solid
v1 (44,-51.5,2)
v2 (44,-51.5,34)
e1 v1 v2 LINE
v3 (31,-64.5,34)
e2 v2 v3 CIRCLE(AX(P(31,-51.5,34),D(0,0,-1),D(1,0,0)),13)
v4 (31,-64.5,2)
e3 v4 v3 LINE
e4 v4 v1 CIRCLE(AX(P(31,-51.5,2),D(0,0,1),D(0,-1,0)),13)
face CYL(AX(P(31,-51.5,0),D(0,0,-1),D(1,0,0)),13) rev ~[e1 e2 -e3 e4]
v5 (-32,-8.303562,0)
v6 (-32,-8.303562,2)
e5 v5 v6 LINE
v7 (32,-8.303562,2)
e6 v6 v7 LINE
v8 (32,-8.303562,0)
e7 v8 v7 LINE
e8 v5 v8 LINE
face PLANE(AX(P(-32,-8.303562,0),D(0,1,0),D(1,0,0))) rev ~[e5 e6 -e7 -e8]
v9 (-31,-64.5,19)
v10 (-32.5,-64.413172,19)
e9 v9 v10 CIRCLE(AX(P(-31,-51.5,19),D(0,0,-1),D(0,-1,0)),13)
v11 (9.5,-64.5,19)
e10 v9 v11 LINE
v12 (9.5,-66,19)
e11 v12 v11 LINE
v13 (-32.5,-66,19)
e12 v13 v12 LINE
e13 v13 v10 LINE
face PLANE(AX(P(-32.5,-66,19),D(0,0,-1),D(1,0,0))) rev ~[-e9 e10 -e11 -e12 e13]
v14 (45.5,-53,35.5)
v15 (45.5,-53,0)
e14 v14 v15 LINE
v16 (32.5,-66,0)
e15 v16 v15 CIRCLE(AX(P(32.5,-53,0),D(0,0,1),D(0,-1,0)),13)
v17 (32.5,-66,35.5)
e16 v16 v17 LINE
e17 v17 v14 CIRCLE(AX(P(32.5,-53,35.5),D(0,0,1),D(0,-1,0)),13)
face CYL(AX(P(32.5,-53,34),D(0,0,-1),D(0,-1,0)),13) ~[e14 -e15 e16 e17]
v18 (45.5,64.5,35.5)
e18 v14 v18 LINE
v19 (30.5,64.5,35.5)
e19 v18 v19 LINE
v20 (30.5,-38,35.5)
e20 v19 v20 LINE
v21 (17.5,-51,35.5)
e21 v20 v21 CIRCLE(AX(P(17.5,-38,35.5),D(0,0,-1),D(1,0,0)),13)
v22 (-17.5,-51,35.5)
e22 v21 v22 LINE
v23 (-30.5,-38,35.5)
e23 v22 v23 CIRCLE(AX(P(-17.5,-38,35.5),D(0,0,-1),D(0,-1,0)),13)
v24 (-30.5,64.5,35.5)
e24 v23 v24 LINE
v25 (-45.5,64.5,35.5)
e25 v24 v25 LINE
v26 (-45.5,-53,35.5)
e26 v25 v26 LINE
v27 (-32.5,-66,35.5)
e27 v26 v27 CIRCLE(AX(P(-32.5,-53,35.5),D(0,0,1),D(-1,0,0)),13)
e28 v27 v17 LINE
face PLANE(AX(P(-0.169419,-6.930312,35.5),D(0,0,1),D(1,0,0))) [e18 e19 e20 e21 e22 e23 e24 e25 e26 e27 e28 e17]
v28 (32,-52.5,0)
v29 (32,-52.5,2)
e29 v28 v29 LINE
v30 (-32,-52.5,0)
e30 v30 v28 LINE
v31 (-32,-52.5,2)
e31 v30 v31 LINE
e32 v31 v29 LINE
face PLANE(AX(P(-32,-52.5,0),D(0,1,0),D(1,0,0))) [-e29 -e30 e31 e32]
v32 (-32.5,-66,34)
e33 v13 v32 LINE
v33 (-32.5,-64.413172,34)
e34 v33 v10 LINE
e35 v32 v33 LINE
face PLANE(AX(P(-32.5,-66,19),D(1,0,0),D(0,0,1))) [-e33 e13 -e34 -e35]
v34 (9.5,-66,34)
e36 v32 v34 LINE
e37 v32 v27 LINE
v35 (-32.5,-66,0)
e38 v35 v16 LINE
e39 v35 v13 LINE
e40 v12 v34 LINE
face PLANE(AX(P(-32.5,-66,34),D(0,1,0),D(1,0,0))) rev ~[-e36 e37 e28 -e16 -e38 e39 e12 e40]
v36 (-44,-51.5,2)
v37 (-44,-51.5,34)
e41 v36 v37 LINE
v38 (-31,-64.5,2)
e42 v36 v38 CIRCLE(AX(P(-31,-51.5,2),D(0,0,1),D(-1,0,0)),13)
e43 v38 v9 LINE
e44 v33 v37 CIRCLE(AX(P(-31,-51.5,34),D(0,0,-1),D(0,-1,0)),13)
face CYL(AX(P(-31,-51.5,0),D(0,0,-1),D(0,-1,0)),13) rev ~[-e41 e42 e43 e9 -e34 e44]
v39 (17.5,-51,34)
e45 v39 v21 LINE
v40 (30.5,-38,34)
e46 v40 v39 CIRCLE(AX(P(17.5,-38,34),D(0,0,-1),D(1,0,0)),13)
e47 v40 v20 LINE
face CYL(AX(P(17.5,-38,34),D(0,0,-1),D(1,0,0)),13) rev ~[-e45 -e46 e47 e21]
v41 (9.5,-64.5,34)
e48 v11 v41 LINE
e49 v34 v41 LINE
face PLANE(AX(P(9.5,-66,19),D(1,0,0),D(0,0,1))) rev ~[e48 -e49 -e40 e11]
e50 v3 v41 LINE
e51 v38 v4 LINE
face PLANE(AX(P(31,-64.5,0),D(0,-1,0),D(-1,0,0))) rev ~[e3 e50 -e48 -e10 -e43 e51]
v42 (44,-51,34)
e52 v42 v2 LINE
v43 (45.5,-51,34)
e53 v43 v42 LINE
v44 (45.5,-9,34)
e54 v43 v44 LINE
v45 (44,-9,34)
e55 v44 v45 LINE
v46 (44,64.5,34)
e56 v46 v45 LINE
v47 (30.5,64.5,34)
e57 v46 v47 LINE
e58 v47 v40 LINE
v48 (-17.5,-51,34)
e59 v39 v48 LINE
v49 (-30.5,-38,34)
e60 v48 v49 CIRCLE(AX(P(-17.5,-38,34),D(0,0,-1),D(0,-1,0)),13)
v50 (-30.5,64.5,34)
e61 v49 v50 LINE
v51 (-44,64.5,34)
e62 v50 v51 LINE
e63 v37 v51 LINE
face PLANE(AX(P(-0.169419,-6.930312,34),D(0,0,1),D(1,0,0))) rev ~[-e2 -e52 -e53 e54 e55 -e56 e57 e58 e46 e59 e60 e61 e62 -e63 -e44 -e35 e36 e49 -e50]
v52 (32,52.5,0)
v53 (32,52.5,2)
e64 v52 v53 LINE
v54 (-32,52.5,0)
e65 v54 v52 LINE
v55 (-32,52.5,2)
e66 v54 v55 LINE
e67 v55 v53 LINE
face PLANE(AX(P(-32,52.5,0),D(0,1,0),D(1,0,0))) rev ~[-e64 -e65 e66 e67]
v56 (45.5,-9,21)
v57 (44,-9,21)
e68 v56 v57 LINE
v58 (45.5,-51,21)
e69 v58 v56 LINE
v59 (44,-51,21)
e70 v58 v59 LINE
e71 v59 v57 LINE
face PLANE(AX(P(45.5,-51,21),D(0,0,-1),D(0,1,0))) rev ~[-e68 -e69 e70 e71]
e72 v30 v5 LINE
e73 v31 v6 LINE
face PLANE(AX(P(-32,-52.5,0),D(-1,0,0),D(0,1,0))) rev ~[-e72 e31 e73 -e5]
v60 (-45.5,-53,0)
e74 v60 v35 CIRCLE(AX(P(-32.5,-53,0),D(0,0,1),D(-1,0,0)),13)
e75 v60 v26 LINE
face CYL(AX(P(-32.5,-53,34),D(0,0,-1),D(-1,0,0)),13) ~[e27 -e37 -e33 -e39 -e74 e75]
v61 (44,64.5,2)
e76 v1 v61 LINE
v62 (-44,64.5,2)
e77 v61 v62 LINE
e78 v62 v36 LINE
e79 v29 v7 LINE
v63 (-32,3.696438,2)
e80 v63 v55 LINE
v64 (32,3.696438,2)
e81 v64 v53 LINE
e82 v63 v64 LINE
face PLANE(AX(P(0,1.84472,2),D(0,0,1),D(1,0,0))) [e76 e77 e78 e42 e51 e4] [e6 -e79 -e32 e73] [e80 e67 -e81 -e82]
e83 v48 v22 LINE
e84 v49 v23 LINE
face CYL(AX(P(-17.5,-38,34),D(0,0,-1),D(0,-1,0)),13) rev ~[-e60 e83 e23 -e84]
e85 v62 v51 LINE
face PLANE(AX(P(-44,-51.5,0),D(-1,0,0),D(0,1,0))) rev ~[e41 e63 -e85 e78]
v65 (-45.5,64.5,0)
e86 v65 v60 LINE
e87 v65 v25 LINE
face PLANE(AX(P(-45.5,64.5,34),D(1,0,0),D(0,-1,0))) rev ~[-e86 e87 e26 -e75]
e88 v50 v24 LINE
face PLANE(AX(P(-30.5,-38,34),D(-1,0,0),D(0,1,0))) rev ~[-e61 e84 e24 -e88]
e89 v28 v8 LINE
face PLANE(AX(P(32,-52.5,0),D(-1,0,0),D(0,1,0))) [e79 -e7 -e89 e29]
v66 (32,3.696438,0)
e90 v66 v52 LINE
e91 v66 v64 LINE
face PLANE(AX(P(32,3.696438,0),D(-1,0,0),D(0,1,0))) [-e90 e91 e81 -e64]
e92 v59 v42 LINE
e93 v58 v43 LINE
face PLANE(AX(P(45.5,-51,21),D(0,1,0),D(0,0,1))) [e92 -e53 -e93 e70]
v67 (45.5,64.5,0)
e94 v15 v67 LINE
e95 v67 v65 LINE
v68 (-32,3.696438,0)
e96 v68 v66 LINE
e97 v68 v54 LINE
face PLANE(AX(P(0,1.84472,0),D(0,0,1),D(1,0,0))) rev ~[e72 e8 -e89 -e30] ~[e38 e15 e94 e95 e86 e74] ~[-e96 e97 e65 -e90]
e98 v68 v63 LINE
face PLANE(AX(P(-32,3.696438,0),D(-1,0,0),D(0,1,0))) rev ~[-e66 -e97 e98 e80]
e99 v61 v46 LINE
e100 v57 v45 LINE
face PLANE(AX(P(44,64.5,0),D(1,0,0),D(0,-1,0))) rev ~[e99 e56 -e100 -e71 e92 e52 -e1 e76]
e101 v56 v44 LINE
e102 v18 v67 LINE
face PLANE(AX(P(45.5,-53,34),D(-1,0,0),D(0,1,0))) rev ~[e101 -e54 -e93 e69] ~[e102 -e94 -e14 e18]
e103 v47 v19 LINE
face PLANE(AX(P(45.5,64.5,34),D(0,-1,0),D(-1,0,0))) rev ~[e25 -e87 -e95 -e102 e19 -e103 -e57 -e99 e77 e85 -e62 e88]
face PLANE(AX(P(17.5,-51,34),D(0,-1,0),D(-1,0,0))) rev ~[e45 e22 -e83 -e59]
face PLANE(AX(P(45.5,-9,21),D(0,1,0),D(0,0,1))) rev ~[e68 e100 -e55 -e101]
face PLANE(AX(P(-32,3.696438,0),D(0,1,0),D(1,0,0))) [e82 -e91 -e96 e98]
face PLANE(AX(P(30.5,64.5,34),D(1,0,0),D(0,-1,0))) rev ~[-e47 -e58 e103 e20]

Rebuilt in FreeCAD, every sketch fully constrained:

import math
import FreeCAD as App
import Part
import Sketcher


def add_polygon(sketch, points):
    """Adds a closed chain of lines whose ends are joined by coincident constraints."""
    first, n = sketch.GeometryCount, len(points)
    for a, b in zip(points, points[1:] + points[:1]):
        sketch.addGeometry(Part.LineSegment(App.Vector(*a, 0), App.Vector(*b, 0)), False)
    for i in range(n):
        sketch.addConstraint(Sketcher.Constraint("Coincident", first + i, 2, first + (i + 1) % n, 1))

doc = App.newDocument("Part")
body = doc.addObject("PartDesign::Body", "Body")

# Sketch on XY plane
sketch1 = body.newObject("Sketcher::SketchObject", "Sketch")
sketch1.AttachmentSupport = (doc.getObject("XY_Plane"), [""])
sketch1.MapMode = "FlatFace"
sketch1.addGeometry(Part.LineSegment(App.Vector(-31, -64.5, 0), App.Vector(31, -64.5, 0)), False)  # 0
sketch1.addGeometry(Part.ArcOfCircle(Part.Circle(App.Vector(31, -51.5, 0), App.Vector(0, 0, 1), 13), math.radians(-90), math.radians(0)), False)  # 1
sketch1.addGeometry(Part.LineSegment(App.Vector(44, -51.5, 0), App.Vector(44, 64.5, 0)), False)  # 2
sketch1.addGeometry(Part.LineSegment(App.Vector(44, 64.5, 0), App.Vector(-44, 64.5, 0)), False)  # 3
sketch1.addGeometry(Part.LineSegment(App.Vector(-44, 64.5, 0), App.Vector(-44, -51.5, 0)), False)  # 4
sketch1.addGeometry(Part.ArcOfCircle(Part.Circle(App.Vector(-31, -51.5, 0), App.Vector(0, 0, 1), 13), math.radians(180), math.radians(270)), False)  # 5
add_polygon(sketch1, [(32, -52.5), (-32, -52.5), (-32, -8.303562), (32, -8.303562)])  # lines 6-9
add_polygon(sketch1, [(32, 3.696438), (-32, 3.696438), (-32, 52.5), (32, 52.5)])  # lines 10-13
sketch1.addConstraint(Sketcher.Constraint("Tangent", 0, 2, 1, 1))
sketch1.addConstraint(Sketcher.Constraint("Tangent", 1, 2, 2, 1))
sketch1.addConstraint(Sketcher.Constraint("Coincident", 2, 2, 3, 1))
sketch1.addConstraint(Sketcher.Constraint("Coincident", 3, 2, 4, 1))
sketch1.addConstraint(Sketcher.Constraint("Tangent", 4, 2, 5, 1))
sketch1.addConstraint(Sketcher.Constraint("Tangent", 5, 2, 0, 1))
sketch1.addConstraint(Sketcher.Constraint("Horizontal", 0))
sketch1.addConstraint(Sketcher.Constraint("Vertical", 2))
sketch1.addConstraint(Sketcher.Constraint("Horizontal", 3))
sketch1.addConstraint(Sketcher.Constraint("Vertical", 4))
sketch1.addConstraint(Sketcher.Constraint("Horizontal", 6))
sketch1.addConstraint(Sketcher.Constraint("Vertical", 7))
sketch1.addConstraint(Sketcher.Constraint("Horizontal", 8))
sketch1.addConstraint(Sketcher.Constraint("Vertical", 9))
sketch1.addConstraint(Sketcher.Constraint("Horizontal", 10))
sketch1.addConstraint(Sketcher.Constraint("Vertical", 11))
sketch1.addConstraint(Sketcher.Constraint("Horizontal", 12))
sketch1.addConstraint(Sketcher.Constraint("Vertical", 13))
sketch1.addConstraint(Sketcher.Constraint("Equal", 1, 5))
sketch1.addConstraint(Sketcher.Constraint("Symmetric", 9, 2, 11, 2, -1, 1))
sketch1.addConstraint(Sketcher.Constraint("Vertical", 7, 2, 10, 2))
sketch1.addConstraint(Sketcher.Constraint("Vertical", 9, 2, 12, 2))
sketch1.addConstraint(Sketcher.Constraint("Radius", 1, 13.0))
sketch1.addConstraint(Sketcher.Constraint("DistanceX", 0, 1, 0, 2, 62.0))
sketch1.addConstraint(Sketcher.Constraint("DistanceX", 6, 2, 6, 1, 64.0))
sketch1.addConstraint(Sketcher.Constraint("DistanceY", 2, 1, 2, 2, 116.0))
sketch1.addConstraint(Sketcher.Constraint("DistanceX", -1, 1, 1, 3, 31.0))
sketch1.addConstraint(Sketcher.Constraint("DistanceY", 6, 2, 5, 3, 1.0))
sketch1.addConstraint(Sketcher.Constraint("DistanceY", 7, 2, 10, 2, 12.0))
sketch1.addConstraint(Sketcher.Constraint("DistanceY", 11, 2, 3, 2, 12.0))
sketch1.addConstraint(Sketcher.Constraint("DistanceY", 7, 1, 7, 2, 44.196438))
pad1 = body.newObject("PartDesign::Pad", "Pad")
pad1.Profile = sketch1
pad1.Length = 2

# Sketch on XY plane
sketch2 = body.newObject("Sketcher::SketchObject", "Sketch001")
sketch2.AttachmentSupport = (doc.getObject("XY_Plane"), [""])
sketch2.MapMode = "FlatFace"
sketch2.addGeometry(Part.ArcOfCircle(Part.Circle(App.Vector(31, -51.5, 0), App.Vector(0, 0, 1), 13), math.radians(-90), math.radians(0)), False)
sketch2.addGeometry(Part.LineSegment(App.Vector(31, -64.5, 0), App.Vector(-31, -64.5, 0)), False)
sketch2.addGeometry(Part.ArcOfCircle(Part.Circle(App.Vector(-31, -51.5, 0), App.Vector(0, 0, 1), 13), math.radians(180), math.radians(270)), False)
sketch2.addGeometry(Part.LineSegment(App.Vector(-44, -51.5, 0), App.Vector(-44, 64.5, 0)), False)
sketch2.addGeometry(Part.LineSegment(App.Vector(-44, 64.5, 0), App.Vector(-45.5, 64.5, 0)), False)
sketch2.addGeometry(Part.LineSegment(App.Vector(-45.5, 64.5, 0), App.Vector(-45.5, -53, 0)), False)
sketch2.addGeometry(Part.ArcOfCircle(Part.Circle(App.Vector(-32.5, -53, 0), App.Vector(0, 0, 1), 13), math.radians(180), math.radians(270)), False)
sketch2.addGeometry(Part.LineSegment(App.Vector(-32.5, -66, 0), App.Vector(32.5, -66, 0)), False)
sketch2.addGeometry(Part.ArcOfCircle(Part.Circle(App.Vector(32.5, -53, 0), App.Vector(0, 0, 1), 13), math.radians(-90), math.radians(0)), False)
sketch2.addGeometry(Part.LineSegment(App.Vector(45.5, -53, 0), App.Vector(45.5, 64.5, 0)), False)
sketch2.addGeometry(Part.LineSegment(App.Vector(45.5, 64.5, 0), App.Vector(44, 64.5, 0)), False)
sketch2.addGeometry(Part.LineSegment(App.Vector(44, 64.5, 0), App.Vector(44, -51.5, 0)), False)
sketch2.addConstraint(Sketcher.Constraint("Tangent", 0, 1, 1, 1))
sketch2.addConstraint(Sketcher.Constraint("Tangent", 1, 2, 2, 2))
sketch2.addConstraint(Sketcher.Constraint("Tangent", 2, 1, 3, 1))
sketch2.addConstraint(Sketcher.Constraint("Coincident", 3, 2, 4, 1))
sketch2.addConstraint(Sketcher.Constraint("Coincident", 4, 2, 5, 1))
sketch2.addConstraint(Sketcher.Constraint("Tangent", 5, 2, 6, 1))
sketch2.addConstraint(Sketcher.Constraint("Tangent", 6, 2, 7, 1))
sketch2.addConstraint(Sketcher.Constraint("Tangent", 7, 2, 8, 1))
sketch2.addConstraint(Sketcher.Constraint("Tangent", 8, 2, 9, 1))
sketch2.addConstraint(Sketcher.Constraint("Coincident", 9, 2, 10, 1))
sketch2.addConstraint(Sketcher.Constraint("Coincident", 10, 2, 11, 1))
sketch2.addConstraint(Sketcher.Constraint("Tangent", 11, 2, 0, 2))
sketch2.addConstraint(Sketcher.Constraint("Horizontal", 1))
sketch2.addConstraint(Sketcher.Constraint("Vertical", 3))
sketch2.addConstraint(Sketcher.Constraint("Horizontal", 4))
sketch2.addConstraint(Sketcher.Constraint("Vertical", 5))
sketch2.addConstraint(Sketcher.Constraint("Horizontal", 7))
sketch2.addConstraint(Sketcher.Constraint("Vertical", 9))
sketch2.addConstraint(Sketcher.Constraint("Horizontal", 10))
sketch2.addConstraint(Sketcher.Constraint("Vertical", 11))
sketch2.addConstraint(Sketcher.Constraint("Equal", 0, 2))
sketch2.addConstraint(Sketcher.Constraint("Equal", 2, 6))
sketch2.addConstraint(Sketcher.Constraint("Equal", 6, 8))
sketch2.addConstraint(Sketcher.Constraint("Symmetric", 4, 2, 9, 2, -2))
sketch2.addConstraint(Sketcher.Constraint("Equal", 4, 10))
sketch2.addConstraint(Sketcher.Constraint("Radius", 0, 13.0))
sketch2.addConstraint(Sketcher.Constraint("DistanceX", 1, 2, 1, 1, 62.0))
sketch2.addConstraint(Sketcher.Constraint("DistanceX", 7, 1, 7, 2, 65.0))
sketch2.addConstraint(Sketcher.Constraint("DistanceY", 3, 1, 3, 2, 116.0))
sketch2.addConstraint(Sketcher.Constraint("DistanceY", 5, 2, 5, 1, 117.5))
sketch2.addConstraint(Sketcher.Constraint("DistanceY", 6, 3, -1, 1, 53.0))
pad2 = body.newObject("PartDesign::Pad", "Pad001")
pad2.Profile = sketch2
pad2.Length = 34

# Sketch on YZ plane
sketch3 = body.newObject("Sketcher::SketchObject", "Sketch002")
sketch3.AttachmentSupport = (doc.getObject("YZ_Plane"), [""])
sketch3.MapMode = "FlatFace"
sketch3.AttachmentOffset = App.Placement(App.Vector(0, 0, 45.5), App.Rotation())
add_polygon(sketch3, [(-51, 34), (-51, 21), (-9, 21), (-9, 34)])  # lines 0-3
sketch3.addConstraint(Sketcher.Constraint("Vertical", 0))
sketch3.addConstraint(Sketcher.Constraint("Horizontal", 1))
sketch3.addConstraint(Sketcher.Constraint("Vertical", 2))
sketch3.addConstraint(Sketcher.Constraint("Horizontal", 3))
sketch3.addConstraint(Sketcher.Constraint("DistanceX", 1, 1, 1, 2, 42.0))
sketch3.addConstraint(Sketcher.Constraint("DistanceY", 0, 2, 0, 1, 13.0))
sketch3.addConstraint(Sketcher.Constraint("DistanceX", 0, 2, -1, 1, 51.0))
sketch3.addConstraint(Sketcher.Constraint("DistanceY", -1, 1, 0, 2, 21.0))
pocket1 = body.newObject("PartDesign::Pocket", "Pocket")
pocket1.Profile = sketch3
pocket1.Length = 5

# Sketch on XZ plane
sketch4 = body.newObject("Sketcher::SketchObject", "Sketch003")
sketch4.AttachmentSupport = (doc.getObject("XZ_Plane"), [""])
sketch4.MapMode = "FlatFace"
sketch4.AttachmentOffset = App.Placement(App.Vector(0, 0, 66), App.Rotation())
add_polygon(sketch4, [(-32.5, 34), (-32.5, 19), (9.5, 19), (9.5, 34)])  # lines 0-3
sketch4.addConstraint(Sketcher.Constraint("Vertical", 0))
sketch4.addConstraint(Sketcher.Constraint("Horizontal", 1))
sketch4.addConstraint(Sketcher.Constraint("Vertical", 2))
sketch4.addConstraint(Sketcher.Constraint("Horizontal", 3))
sketch4.addConstraint(Sketcher.Constraint("DistanceX", 1, 1, 1, 2, 42.0))
sketch4.addConstraint(Sketcher.Constraint("DistanceY", 0, 2, 0, 1, 15.0))
sketch4.addConstraint(Sketcher.Constraint("DistanceY", -1, 1, 0, 2, 19.0))
sketch4.addConstraint(Sketcher.Constraint("DistanceX", 0, 2, -1, 1, 32.5))
pocket2 = body.newObject("PartDesign::Pocket", "Pocket001")
pocket2.Profile = sketch4
pocket2.Length = 5

# Sketch on XY plane
sketch5 = body.newObject("Sketcher::SketchObject", "Sketch004")
sketch5.AttachmentSupport = (doc.getObject("XY_Plane"), [""])
sketch5.MapMode = "FlatFace"
sketch5.AttachmentOffset = App.Placement(App.Vector(0, 0, 34), App.Rotation())
sketch5.addGeometry(Part.LineSegment(App.Vector(30.5, 64.5, 0), App.Vector(30.5, -38, 0)), False)
sketch5.addGeometry(Part.ArcOfCircle(Part.Circle(App.Vector(17.5, -38, 0), App.Vector(0, 0, 1), 13), math.radians(-90), math.radians(0)), False)
sketch5.addGeometry(Part.LineSegment(App.Vector(17.5, -51, 0), App.Vector(-17.5, -51, 0)), False)
sketch5.addGeometry(Part.ArcOfCircle(Part.Circle(App.Vector(-17.5, -38, 0), App.Vector(0, 0, 1), 13), math.radians(180), math.radians(270)), False)
sketch5.addGeometry(Part.LineSegment(App.Vector(-30.5, -38, 0), App.Vector(-30.5, 64.5, 0)), False)
sketch5.addGeometry(Part.LineSegment(App.Vector(-30.5, 64.5, 0), App.Vector(-45.5, 64.5, 0)), False)
sketch5.addGeometry(Part.LineSegment(App.Vector(-45.5, 64.5, 0), App.Vector(-45.5, -53, 0)), False)
sketch5.addGeometry(Part.ArcOfCircle(Part.Circle(App.Vector(-32.5, -53, 0), App.Vector(0, 0, 1), 13), math.radians(180), math.radians(270)), False)
sketch5.addGeometry(Part.LineSegment(App.Vector(-32.5, -66, 0), App.Vector(32.5, -66, 0)), False)
sketch5.addGeometry(Part.ArcOfCircle(Part.Circle(App.Vector(32.5, -53, 0), App.Vector(0, 0, 1), 13), math.radians(-90), math.radians(0)), False)
sketch5.addGeometry(Part.LineSegment(App.Vector(45.5, -53, 0), App.Vector(45.5, 64.5, 0)), False)
sketch5.addGeometry(Part.LineSegment(App.Vector(45.5, 64.5, 0), App.Vector(30.5, 64.5, 0)), False)
sketch5.addConstraint(Sketcher.Constraint("Tangent", 0, 2, 1, 2))
sketch5.addConstraint(Sketcher.Constraint("Tangent", 1, 1, 2, 1))
sketch5.addConstraint(Sketcher.Constraint("Tangent", 2, 2, 3, 2))
sketch5.addConstraint(Sketcher.Constraint("Tangent", 3, 1, 4, 1))
sketch5.addConstraint(Sketcher.Constraint("Coincident", 4, 2, 5, 1))
sketch5.addConstraint(Sketcher.Constraint("Coincident", 5, 2, 6, 1))
sketch5.addConstraint(Sketcher.Constraint("Tangent", 6, 2, 7, 1))
sketch5.addConstraint(Sketcher.Constraint("Tangent", 7, 2, 8, 1))
sketch5.addConstraint(Sketcher.Constraint("Tangent", 8, 2, 9, 1))
sketch5.addConstraint(Sketcher.Constraint("Tangent", 9, 2, 10, 1))
sketch5.addConstraint(Sketcher.Constraint("Coincident", 10, 2, 11, 1))
sketch5.addConstraint(Sketcher.Constraint("Coincident", 11, 2, 0, 1))
sketch5.addConstraint(Sketcher.Constraint("Vertical", 0))
sketch5.addConstraint(Sketcher.Constraint("Horizontal", 2))
sketch5.addConstraint(Sketcher.Constraint("Vertical", 4))
sketch5.addConstraint(Sketcher.Constraint("Horizontal", 5))
sketch5.addConstraint(Sketcher.Constraint("Vertical", 6))
sketch5.addConstraint(Sketcher.Constraint("Horizontal", 8))
sketch5.addConstraint(Sketcher.Constraint("Vertical", 10))
sketch5.addConstraint(Sketcher.Constraint("Horizontal", 11))
sketch5.addConstraint(Sketcher.Constraint("Equal", 1, 3))
sketch5.addConstraint(Sketcher.Constraint("Equal", 3, 7))
sketch5.addConstraint(Sketcher.Constraint("Equal", 7, 9))
sketch5.addConstraint(Sketcher.Constraint("Symmetric", 5, 2, 10, 2, -2))
sketch5.addConstraint(Sketcher.Constraint("Equal", 5, 11))
sketch5.addConstraint(Sketcher.Constraint("Radius", 1, 13.0))
sketch5.addConstraint(Sketcher.Constraint("DistanceX", 2, 2, 2, 1, 35.0))
sketch5.addConstraint(Sketcher.Constraint("DistanceX", 5, 2, 5, 1, 15.0))
sketch5.addConstraint(Sketcher.Constraint("DistanceY", 0, 2, 0, 1, 102.5))
sketch5.addConstraint(Sketcher.Constraint("DistanceY", 6, 2, 6, 1, 117.5))
sketch5.addConstraint(Sketcher.Constraint("DistanceY", 1, 3, -1, 1, 38.0))
pad3 = body.newObject("PartDesign::Pad", "Pad002")
pad3.Profile = sketch5
pad3.Length = 1.5

doc.recompute()
